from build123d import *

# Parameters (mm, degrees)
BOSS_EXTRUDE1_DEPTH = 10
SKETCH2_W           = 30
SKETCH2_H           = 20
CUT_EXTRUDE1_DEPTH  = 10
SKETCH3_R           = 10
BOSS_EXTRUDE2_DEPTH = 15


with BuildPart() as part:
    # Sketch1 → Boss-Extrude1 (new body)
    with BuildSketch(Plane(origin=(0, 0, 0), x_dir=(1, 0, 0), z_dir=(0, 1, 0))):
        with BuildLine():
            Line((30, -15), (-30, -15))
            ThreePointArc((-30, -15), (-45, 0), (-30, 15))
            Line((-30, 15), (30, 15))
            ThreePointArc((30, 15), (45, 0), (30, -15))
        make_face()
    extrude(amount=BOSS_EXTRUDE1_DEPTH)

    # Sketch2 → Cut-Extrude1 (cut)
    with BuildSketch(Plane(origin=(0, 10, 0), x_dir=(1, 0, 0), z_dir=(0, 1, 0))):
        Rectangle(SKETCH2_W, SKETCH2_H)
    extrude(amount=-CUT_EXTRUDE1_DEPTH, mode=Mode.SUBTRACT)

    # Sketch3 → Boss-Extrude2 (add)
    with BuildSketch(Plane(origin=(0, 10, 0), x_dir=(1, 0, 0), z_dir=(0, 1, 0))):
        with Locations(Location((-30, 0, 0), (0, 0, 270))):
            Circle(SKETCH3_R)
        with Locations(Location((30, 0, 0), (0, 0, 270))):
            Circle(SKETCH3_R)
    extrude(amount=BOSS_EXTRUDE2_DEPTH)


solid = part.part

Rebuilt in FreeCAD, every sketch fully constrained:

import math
import FreeCAD as App
import Part
import Sketcher

V = App.Vector


def add_polygon(sketch, points):
    """Adds a closed chain of lines whose ends are joined by coincident constraints."""
    first, n = sketch.GeometryCount, len(points)
    for a, b in zip(points, points[1:] + points[:1]):
        sketch.addGeometry(Part.LineSegment(App.Vector(*a, 0), App.Vector(*b, 0)), False)
    for i in range(n):
        sketch.addConstraint(Sketcher.Constraint("Coincident", first + i, 2, first + (i + 1) % n, 1))

doc = App.newDocument("Part")
params = doc.addObject("Spreadsheet::Sheet", "Params")
for row, (alias, value) in enumerate([
    ("sketch1_radius", "15 mm"),
    ("sketch1_width", "60 mm"),
    ("pad1_length", "10 mm"),
    ("sketch2_width", "30 mm"),
    ("sketch2_height", "20 mm"),
    ("pocket1_length", "10 mm"),
    ("sketch3_diameter", "20 mm"),
    ("pad2_length", "15 mm"),
], start=1):
    params.set(f"A{row}", alias)
    params.set(f"B{row}", "=" + value)
    params.setAlias(f"B{row}", alias)

body = doc.addObject("PartDesign::Body", "Body")

sketch1 = doc.addObject("Sketcher::SketchObject", "Sketch")
body.addObject(sketch1)
sketch1.AttachmentSupport = (doc.XZ_Plane, [""])
sketch1.MapMode = "FlatFace"
sketch1.addGeometry([
    Part.LineSegment(V(-30, 15, 0), V(30, 15, 0)),
    Part.ArcOfCircle(Part.Circle(V(30, 0, 0), V(0, 0, 1), 15), math.radians(-90), math.radians(90)),
    Part.LineSegment(V(30, -15, 0), V(-30, -15, 0)),
    Part.ArcOfCircle(Part.Circle(V(-30, 0, 0), V(0, 0, 1), 15), math.radians(90), math.radians(270)),
], False)
sketch1.addConstraint([
    Sketcher.Constraint("Tangent", 0, 2, 1, 2),
    Sketcher.Constraint("Tangent", 1, 1, 2, 1),
    Sketcher.Constraint("Tangent", 2, 2, 3, 2),
    Sketcher.Constraint("Tangent", 3, 1, 0, 1),
    Sketcher.Constraint("Horizontal", 0),
    Sketcher.Constraint("Horizontal", 2),
    Sketcher.Constraint("Symmetric", 1, 3, 3, 3, -1, 1),
    Sketcher.Constraint("Radius", 1, 15.0),
    Sketcher.Constraint("DistanceX", 0, 1, 0, 2, 60.0),
])
sketch1.setExpression("Constraints[7]", "Params.sketch1_radius")
sketch1.setExpression("Constraints[8]", "Params.sketch1_width")
pad1 = doc.addObject("PartDesign::Pad", "Pad")
body.addObject(pad1)
pad1.Profile = sketch1
pad1.setExpression("Length", "Params.pad1_length")
pad1.Reversed = True

sketch2 = doc.addObject("Sketcher::SketchObject", "Sketch001")
body.addObject(sketch2)
sketch2.AttachmentSupport = (doc.XZ_Plane, [""])
sketch2.MapMode = "FlatFace"
sketch2.AttachmentOffset = App.Placement(V(0, 0, -10), App.Rotation())
add_polygon(sketch2, [(-15, -10), (-15, 10), (15, 10), (15, -10)])
sketch2.addConstraint([
    Sketcher.Constraint("Vertical", 0),
    Sketcher.Constraint("Horizontal", 1),
    Sketcher.Constraint("Vertical", 2),
    Sketcher.Constraint("Horizontal", 3),
    Sketcher.Constraint("Symmetric", 0, 2, 2, 2, -1, 1),
    Sketcher.Constraint("DistanceX", 1, 1, 1, 2, 30.0),
    Sketcher.Constraint("DistanceY", 0, 1, 0, 2, 20.0),
])
sketch2.setExpression("Constraints[9]", "Params.sketch2_width")
sketch2.setExpression("Constraints[10]", "Params.sketch2_height")
pocket1 = doc.addObject("PartDesign::Pocket", "Pocket")
body.addObject(pocket1)
pocket1.Profile = sketch2
pocket1.setExpression("Length", "Params.pocket1_length")
pocket1.Reversed = True

sketch3 = doc.addObject("Sketcher::SketchObject", "Sketch002")
body.addObject(sketch3)
sketch3.AttachmentSupport = (doc.XZ_Plane, [""])
sketch3.MapMode = "FlatFace"
sketch3.AttachmentOffset = App.Placement(V(0, 0, -10), App.Rotation())
sketch3.addGeometry([
    Part.Circle(V(-30, 0, 0), V(0, 0, 1), 10),
    Part.Circle(V(30, 0, 0), V(0, 0, 1), 10),
], False)
sketch3.addConstraint([
    Sketcher.Constraint("Equal", 0, 1),
    Sketcher.Constraint("Symmetric", 0, 3, 1, 3, -1, 1),
    Sketcher.Constraint("PointOnObject", 0, 3, -1),
    Sketcher.Constraint("Diameter", 0, 20.0),
    Sketcher.Constraint("DistanceX", 0, 3, -1, 1, 30.0),
])
sketch3.setExpression("Constraints[3]", "Params.sketch3_diameter")
pad2 = doc.addObject("PartDesign::Pad", "Pad001")
body.addObject(pad2)
pad2.Profile = sketch3
pad2.setExpression("Length", "Params.pad2_length")
pad2.Reversed = True

doc.recompute()
